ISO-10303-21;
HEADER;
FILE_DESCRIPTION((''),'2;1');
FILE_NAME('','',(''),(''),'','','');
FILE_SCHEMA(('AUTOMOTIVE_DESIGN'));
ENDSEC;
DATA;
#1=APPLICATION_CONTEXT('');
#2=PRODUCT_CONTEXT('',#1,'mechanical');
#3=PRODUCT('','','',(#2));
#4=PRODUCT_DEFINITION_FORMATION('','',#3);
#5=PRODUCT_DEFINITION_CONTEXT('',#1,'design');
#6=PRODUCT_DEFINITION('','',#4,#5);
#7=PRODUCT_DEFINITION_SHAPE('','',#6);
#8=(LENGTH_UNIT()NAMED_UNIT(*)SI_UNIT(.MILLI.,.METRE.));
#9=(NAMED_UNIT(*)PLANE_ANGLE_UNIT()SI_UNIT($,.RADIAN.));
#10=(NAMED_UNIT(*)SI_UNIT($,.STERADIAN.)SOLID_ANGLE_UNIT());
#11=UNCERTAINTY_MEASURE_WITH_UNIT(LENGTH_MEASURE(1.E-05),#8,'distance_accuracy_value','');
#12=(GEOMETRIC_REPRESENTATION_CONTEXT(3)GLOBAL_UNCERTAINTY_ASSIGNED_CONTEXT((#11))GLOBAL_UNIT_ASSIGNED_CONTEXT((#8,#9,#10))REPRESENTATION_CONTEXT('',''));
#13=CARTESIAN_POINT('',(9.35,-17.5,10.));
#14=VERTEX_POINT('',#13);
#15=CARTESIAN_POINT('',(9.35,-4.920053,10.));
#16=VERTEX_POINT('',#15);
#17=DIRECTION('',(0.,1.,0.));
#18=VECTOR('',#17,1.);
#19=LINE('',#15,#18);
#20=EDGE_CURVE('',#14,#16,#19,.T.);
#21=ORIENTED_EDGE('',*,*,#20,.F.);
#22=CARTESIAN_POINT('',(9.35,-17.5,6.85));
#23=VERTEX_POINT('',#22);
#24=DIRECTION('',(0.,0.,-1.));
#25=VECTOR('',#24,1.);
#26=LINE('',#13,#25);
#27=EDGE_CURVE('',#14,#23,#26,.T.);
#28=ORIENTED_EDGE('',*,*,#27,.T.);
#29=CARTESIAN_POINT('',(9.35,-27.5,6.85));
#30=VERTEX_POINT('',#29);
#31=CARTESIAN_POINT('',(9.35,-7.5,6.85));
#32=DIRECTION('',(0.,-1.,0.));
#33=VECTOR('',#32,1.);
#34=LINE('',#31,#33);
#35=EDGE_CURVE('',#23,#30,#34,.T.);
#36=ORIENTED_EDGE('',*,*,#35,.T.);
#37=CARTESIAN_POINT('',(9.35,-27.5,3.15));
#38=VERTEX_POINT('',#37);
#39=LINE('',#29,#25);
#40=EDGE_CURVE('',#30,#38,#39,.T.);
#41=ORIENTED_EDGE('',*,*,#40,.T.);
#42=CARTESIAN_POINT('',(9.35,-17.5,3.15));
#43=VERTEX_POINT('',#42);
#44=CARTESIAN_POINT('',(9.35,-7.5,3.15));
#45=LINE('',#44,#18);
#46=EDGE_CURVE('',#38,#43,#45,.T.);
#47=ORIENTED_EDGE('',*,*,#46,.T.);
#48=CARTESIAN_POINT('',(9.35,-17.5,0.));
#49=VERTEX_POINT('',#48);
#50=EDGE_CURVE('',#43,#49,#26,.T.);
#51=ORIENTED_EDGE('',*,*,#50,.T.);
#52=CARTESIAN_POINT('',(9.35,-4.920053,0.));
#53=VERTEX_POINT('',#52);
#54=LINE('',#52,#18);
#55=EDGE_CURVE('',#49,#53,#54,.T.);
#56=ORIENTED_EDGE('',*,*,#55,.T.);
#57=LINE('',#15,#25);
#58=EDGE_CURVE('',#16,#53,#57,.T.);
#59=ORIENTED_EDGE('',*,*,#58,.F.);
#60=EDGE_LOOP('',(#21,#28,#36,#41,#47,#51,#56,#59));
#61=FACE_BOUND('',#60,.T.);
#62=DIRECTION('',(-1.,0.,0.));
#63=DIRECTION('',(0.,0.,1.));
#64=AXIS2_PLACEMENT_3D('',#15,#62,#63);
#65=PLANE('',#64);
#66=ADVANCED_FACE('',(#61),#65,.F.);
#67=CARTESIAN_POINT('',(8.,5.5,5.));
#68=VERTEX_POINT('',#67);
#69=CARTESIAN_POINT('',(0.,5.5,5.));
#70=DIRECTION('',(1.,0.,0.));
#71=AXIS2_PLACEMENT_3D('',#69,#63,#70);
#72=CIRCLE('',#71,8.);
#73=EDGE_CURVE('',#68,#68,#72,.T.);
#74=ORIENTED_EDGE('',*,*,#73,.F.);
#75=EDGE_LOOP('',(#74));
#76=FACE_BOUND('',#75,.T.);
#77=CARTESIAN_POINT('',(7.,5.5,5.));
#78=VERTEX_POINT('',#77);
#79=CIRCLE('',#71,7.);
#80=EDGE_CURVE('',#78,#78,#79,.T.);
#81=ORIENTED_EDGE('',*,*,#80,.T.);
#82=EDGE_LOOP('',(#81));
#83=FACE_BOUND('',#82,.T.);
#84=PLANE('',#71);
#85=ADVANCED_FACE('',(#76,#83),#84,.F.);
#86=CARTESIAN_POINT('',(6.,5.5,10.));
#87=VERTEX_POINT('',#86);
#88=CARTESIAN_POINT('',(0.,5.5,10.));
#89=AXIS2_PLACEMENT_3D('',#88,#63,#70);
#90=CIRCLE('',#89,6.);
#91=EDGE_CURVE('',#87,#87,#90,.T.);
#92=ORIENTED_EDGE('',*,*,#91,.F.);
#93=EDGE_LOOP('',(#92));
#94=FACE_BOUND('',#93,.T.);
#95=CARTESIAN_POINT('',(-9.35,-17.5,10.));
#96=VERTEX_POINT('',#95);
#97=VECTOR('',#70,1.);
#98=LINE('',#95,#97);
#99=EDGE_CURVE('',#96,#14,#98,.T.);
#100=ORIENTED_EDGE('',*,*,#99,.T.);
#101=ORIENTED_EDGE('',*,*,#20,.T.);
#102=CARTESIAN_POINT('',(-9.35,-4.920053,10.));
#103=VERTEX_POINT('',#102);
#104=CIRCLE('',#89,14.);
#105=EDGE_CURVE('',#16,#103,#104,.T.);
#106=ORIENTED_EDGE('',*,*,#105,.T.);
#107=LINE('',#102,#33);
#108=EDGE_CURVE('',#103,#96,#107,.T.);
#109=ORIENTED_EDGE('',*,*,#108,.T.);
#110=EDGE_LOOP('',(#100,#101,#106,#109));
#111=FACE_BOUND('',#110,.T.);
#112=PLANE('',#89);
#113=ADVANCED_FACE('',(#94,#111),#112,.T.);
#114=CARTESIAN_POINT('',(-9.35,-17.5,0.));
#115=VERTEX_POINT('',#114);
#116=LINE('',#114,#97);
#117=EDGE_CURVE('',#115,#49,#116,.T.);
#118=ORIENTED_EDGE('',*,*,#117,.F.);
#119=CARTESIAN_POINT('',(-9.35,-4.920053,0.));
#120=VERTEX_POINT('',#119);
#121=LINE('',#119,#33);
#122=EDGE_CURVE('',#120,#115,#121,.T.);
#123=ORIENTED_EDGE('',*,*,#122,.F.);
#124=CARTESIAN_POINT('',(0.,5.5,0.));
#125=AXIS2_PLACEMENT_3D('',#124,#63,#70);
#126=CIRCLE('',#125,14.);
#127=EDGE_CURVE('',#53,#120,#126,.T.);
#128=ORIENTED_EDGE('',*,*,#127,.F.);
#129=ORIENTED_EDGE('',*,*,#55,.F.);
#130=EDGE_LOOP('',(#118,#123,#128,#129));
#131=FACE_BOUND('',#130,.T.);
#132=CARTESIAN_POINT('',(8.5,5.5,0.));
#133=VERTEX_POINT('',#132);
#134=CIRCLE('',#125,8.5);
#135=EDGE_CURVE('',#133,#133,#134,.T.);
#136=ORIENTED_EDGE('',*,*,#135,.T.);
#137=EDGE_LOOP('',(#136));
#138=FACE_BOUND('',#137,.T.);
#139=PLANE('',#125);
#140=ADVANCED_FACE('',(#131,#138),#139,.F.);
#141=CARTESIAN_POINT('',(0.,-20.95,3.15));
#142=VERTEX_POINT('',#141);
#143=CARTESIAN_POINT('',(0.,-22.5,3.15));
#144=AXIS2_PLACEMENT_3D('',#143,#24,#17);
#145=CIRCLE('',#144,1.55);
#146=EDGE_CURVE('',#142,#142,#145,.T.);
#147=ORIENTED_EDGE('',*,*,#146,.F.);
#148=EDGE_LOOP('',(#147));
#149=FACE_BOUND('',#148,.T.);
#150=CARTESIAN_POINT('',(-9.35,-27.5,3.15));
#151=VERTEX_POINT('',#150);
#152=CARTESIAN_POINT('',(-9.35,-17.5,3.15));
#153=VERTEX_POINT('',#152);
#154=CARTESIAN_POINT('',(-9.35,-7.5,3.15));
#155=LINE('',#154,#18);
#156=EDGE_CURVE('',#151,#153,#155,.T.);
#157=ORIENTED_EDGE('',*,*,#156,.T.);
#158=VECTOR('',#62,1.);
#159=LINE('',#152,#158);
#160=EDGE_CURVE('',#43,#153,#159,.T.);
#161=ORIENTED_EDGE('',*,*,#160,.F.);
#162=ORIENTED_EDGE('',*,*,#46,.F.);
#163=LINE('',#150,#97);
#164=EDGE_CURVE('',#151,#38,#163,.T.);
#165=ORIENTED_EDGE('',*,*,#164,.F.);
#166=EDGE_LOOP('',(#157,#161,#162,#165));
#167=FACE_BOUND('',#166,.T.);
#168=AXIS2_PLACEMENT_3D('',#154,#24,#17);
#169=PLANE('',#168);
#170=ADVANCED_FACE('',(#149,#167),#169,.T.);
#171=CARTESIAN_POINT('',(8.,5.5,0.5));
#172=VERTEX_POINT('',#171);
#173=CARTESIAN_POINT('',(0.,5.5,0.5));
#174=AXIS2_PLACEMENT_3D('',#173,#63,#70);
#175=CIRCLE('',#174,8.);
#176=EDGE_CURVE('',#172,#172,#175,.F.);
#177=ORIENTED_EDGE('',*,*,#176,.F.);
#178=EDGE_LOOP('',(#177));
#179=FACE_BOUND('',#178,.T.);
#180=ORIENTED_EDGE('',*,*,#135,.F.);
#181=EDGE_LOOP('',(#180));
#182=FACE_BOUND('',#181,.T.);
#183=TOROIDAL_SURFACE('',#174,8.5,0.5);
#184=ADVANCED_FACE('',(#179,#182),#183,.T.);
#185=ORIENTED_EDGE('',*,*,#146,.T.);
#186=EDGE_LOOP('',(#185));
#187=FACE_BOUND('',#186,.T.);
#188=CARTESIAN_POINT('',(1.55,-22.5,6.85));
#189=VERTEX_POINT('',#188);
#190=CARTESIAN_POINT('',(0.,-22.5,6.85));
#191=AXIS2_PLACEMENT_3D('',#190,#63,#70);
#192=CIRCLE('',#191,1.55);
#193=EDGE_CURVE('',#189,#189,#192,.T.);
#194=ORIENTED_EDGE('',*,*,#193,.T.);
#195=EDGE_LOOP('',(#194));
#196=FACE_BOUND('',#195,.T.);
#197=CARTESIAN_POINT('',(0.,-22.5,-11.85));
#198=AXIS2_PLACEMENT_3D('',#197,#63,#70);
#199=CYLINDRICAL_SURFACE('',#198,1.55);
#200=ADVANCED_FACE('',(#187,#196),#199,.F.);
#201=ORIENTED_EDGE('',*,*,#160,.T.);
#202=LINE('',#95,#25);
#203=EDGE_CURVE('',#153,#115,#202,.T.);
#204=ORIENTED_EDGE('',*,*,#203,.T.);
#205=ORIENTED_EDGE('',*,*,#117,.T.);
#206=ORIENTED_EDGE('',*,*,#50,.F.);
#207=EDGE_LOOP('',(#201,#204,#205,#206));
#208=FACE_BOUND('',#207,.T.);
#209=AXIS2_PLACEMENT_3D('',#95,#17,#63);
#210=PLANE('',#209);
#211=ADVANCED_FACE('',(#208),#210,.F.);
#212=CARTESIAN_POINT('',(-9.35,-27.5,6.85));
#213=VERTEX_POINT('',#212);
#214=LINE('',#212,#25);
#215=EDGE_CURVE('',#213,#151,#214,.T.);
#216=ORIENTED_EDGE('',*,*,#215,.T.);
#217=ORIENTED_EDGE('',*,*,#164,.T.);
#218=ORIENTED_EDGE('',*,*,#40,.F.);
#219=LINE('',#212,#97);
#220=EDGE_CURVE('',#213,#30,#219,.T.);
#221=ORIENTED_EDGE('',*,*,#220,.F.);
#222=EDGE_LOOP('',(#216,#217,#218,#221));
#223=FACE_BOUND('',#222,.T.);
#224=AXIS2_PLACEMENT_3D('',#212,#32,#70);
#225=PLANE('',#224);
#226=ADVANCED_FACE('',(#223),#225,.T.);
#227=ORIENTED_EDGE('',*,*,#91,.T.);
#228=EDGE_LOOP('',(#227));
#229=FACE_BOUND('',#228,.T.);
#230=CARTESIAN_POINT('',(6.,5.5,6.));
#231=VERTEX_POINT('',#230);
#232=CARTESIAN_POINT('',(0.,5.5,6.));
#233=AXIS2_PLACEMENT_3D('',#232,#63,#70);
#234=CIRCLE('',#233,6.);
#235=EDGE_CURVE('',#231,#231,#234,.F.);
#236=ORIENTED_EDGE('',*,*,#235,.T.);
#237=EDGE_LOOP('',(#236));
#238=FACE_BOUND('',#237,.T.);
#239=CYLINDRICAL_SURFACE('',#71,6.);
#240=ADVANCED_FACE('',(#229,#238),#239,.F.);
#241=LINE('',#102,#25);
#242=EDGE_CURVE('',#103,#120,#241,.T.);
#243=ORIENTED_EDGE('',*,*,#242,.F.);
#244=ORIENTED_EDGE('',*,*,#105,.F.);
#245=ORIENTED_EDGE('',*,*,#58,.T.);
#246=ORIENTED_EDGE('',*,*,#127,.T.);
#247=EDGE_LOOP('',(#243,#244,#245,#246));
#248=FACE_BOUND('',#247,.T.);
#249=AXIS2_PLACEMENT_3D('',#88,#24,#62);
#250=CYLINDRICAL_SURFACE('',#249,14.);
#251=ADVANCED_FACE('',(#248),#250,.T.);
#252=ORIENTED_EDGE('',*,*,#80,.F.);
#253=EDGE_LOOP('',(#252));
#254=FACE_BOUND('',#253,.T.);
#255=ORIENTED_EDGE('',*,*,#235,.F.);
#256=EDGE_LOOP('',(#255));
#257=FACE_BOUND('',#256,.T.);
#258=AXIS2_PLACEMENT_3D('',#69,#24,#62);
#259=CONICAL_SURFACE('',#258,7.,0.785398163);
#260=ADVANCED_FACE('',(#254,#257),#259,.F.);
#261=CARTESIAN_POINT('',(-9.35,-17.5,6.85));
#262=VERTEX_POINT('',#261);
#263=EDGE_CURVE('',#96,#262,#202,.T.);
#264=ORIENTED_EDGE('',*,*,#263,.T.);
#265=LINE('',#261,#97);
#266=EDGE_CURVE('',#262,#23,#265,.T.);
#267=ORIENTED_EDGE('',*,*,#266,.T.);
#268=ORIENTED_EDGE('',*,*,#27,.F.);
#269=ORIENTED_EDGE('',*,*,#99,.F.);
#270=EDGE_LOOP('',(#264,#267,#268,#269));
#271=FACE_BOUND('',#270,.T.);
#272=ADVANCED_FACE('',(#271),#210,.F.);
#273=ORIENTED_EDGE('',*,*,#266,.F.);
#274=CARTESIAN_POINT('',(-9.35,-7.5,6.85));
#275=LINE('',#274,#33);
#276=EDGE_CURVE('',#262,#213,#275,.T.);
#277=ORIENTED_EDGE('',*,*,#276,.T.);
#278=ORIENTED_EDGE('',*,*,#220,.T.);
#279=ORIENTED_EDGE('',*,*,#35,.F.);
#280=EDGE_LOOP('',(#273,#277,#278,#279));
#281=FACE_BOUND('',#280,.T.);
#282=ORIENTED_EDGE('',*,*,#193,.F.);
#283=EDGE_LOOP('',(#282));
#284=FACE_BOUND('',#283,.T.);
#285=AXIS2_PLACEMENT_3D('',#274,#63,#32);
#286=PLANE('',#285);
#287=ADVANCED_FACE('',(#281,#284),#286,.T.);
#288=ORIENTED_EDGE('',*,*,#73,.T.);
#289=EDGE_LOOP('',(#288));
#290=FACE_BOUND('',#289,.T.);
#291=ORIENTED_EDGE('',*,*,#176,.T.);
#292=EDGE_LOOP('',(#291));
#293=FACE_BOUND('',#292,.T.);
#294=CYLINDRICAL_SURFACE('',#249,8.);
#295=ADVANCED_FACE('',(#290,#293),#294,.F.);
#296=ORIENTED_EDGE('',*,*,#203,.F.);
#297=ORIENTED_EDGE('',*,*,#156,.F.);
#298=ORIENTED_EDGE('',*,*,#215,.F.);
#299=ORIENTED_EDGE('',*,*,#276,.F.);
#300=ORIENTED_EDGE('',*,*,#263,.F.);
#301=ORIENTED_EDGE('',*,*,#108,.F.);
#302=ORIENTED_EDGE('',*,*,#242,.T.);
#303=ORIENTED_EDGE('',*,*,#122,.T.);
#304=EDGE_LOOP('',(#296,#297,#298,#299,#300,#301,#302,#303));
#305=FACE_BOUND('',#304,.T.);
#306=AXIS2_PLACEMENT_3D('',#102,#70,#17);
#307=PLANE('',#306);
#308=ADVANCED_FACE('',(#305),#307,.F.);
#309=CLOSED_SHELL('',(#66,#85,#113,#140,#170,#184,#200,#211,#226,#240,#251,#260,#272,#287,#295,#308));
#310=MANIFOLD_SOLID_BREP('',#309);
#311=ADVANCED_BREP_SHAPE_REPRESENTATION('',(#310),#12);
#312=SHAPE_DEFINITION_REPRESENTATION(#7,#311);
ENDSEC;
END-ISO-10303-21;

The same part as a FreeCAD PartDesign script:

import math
import FreeCAD as App
import Part
import Sketcher

V = App.Vector
Q = App.Units.Quantity


def edges_at(feature, points):
    """Names of the edges that pass closest to the given points."""
    edges = feature.Shape.Edges
    near = lambda p: min(range(len(edges)), key=lambda i: edges[i].distToShape(Part.Vertex(*p))[0])
    return sorted({f"Edge{near(p) + 1}" for p in points})

doc = App.newDocument("Part")
body = doc.addObject("PartDesign::Body", "Body")

# Sketch on XY plane
sketch1 = body.newObject("Sketcher::SketchObject", "Sketch")
sketch1.AttachmentSupport = (doc.getObject("XY_Plane"), [""])
sketch1.MapMode = "FlatFace"
sketch1.addGeometry(Part.LineSegment(V(-9, -5, 0), V(-9, -18, 0)), False)
sketch1.addGeometry(Part.LineSegment(V(-9, -18, 0), V(9, -18, 0)), False)
sketch1.addGeometry(Part.LineSegment(V(9, -18, 0), V(9, -5, 0)), False)
sketch1.addGeometry(Part.ArcOfCircle(Part.Circle(V(0, 6, 0), V(0, 0, 1), 14), math.radians(-48), math.radians(228)), False)
sketch1.addGeometry(Part.Circle(V(0, 6, 0), V(0, 0, 1), 8), False)
sketch1.addConstraint(Sketcher.Constraint("Coincident", 0, 2, 1, 1))
sketch1.addConstraint(Sketcher.Constraint("Coincident", 1, 2, 2, 1))
sketch1.addConstraint(Sketcher.Constraint("Coincident", 2, 2, 3, 1))
sketch1.addConstraint(Sketcher.Constraint("Coincident", 3, 2, 0, 1))
sketch1.addConstraint(Sketcher.Constraint("Vertical", 0))
sketch1.addConstraint(Sketcher.Constraint("Horizontal", 1))
sketch1.addConstraint(Sketcher.Constraint("Vertical", 2))
sketch1.addConstraint(Sketcher.Constraint("Coincident", 4, 3, 3, 3))
sketch1.addConstraint(Sketcher.Constraint("Symmetric", 2, 2, 3, 2, -2))
sketch1.addConstraint(Sketcher.Constraint("Diameter", 4, Q("16 mm")))
sketch1.addConstraint(Sketcher.Constraint("Radius", 3, Q("14 mm")))
sketch1.addConstraint(Sketcher.Constraint("DistanceX", 1, 1, 1, 2, Q("18.7 mm")))
sketch1.addConstraint(Sketcher.Constraint("DistanceY", 0, 2, 3, 3, Q("23 mm")))
sketch1.addConstraint(Sketcher.Constraint("DistanceY", -1, 1, 3, 3, Q("5.5 mm")))
pad1 = body.newObject("PartDesign::Pad", "Pad")
pad1.Profile = sketch1
pad1.Length = 10

# Sketch on YZ plane
sketch2 = body.newObject("Sketcher::SketchObject", "Sketch001")
sketch2.AttachmentSupport = (doc.getObject("YZ_Plane"), [""])
sketch2.MapMode = "FlatFace"
sketch2.AttachmentOffset = App.Placement(V(0, 0, 9.35), App.Rotation())
sketch2.addGeometry(Part.LineSegment(V(-7.5, 6.8, 0), V(-27.5, 6.8, 0)), False)
sketch2.addGeometry(Part.LineSegment(V(-27.5, 6.8, 0), V(-27.5, 3.1, 0)), False)
sketch2.addGeometry(Part.LineSegment(V(-27.5, 3.1, 0), V(-7.5, 3.1, 0)), False)
sketch2.addGeometry(Part.LineSegment(V(-7.5, 3.1, 0), V(-7.5, 6.8, 0)), False)
sketch2.addConstraint(Sketcher.Constraint("Coincident", 0, 2, 1, 1))
sketch2.addConstraint(Sketcher.Constraint("Coincident", 1, 2, 2, 1))
sketch2.addConstraint(Sketcher.Constraint("Coincident", 2, 2, 3, 1))
sketch2.addConstraint(Sketcher.Constraint("Coincident", 3, 2, 0, 1))
sketch2.addConstraint(Sketcher.Constraint("Horizontal", 0))
sketch2.addConstraint(Sketcher.Constraint("Vertical", 1))
sketch2.addConstraint(Sketcher.Constraint("Horizontal", 2))
sketch2.addConstraint(Sketcher.Constraint("Vertical", 3))
sketch2.addConstraint(Sketcher.Constraint("DistanceX", 0, 2, 0, 1, Q("20 mm")))
sketch2.addConstraint(Sketcher.Constraint("DistanceY", 1, 2, 1, 1, Q("3.7 mm")))
sketch2.addConstraint(Sketcher.Constraint("DistanceX", 0, 2, -1, 1, Q("27.5 mm")))
sketch2.addConstraint(Sketcher.Constraint("DistanceY", -1, 1, 0, 2, Q("6.85 mm")))
pad2 = body.newObject("PartDesign::Pad", "Pad001")
pad2.Profile = sketch2
pad2.Length = 18.7
pad2.Reversed = True

# Sketch on XY plane
sketch3 = body.newObject("Sketcher::SketchObject", "Sketch002")
sketch3.AttachmentSupport = (doc.getObject("XY_Plane"), [""])
sketch3.MapMode = "FlatFace"
sketch3.AttachmentOffset = App.Placement(V(0, 0, 6.85), App.Rotation())
sketch3.addGeometry(Part.Circle(V(0, -22.5, 0), V(0, 0, 1), 1.6), False)
sketch3.addConstraint(Sketcher.Constraint("PointOnObject", 0, 3, -2))
sketch3.addConstraint(Sketcher.Constraint("Diameter", 0, Q("3.1 mm")))
sketch3.addConstraint(Sketcher.Constraint("DistanceY", 0, 3, -1, 1, Q("22.5 mm")))
pocket1 = body.newObject("PartDesign::Pocket", "Pocket")
pocket1.Profile = sketch3
pocket1.Length = 18.7

# Sketch on XY plane
sketch4 = body.newObject("Sketcher::SketchObject", "Sketch003")
sketch4.AttachmentSupport = (doc.getObject("XY_Plane"), [""])
sketch4.MapMode = "FlatFace"
sketch4.AttachmentOffset = App.Placement(V(0, 0, 5), App.Rotation())
sketch4.addGeometry(Part.Circle(V(0, 6, 0), V(0, 0, 1), 8), False)
sketch4.addGeometry(Part.Circle(V(0, 6, 0), V(0, 0, 1), 6), False)
sketch4.addConstraint(Sketcher.Constraint("Coincident", 1, 3, 0, 3))
sketch4.addConstraint(Sketcher.Constraint("PointOnObject", 0, 3, -2))
sketch4.addConstraint(Sketcher.Constraint("Diameter", 0, Q("16 mm")))
sketch4.addConstraint(Sketcher.Constraint("Diameter", 1, Q("12 mm")))
sketch4.addConstraint(Sketcher.Constraint("DistanceY", -1, 1, 0, 3, Q("5.5 mm")))
pad3 = body.newObject("PartDesign::Pad", "Pad002")
pad3.Profile = sketch4
pad3.Length = 5
doc.recompute()

chamfer = body.newObject("PartDesign::Chamfer", "Chamfer")
chamfer.Base = (pad3, edges_at(pad3, [(-6, 5.5, 5)]))
chamfer.Size = 1
doc.recompute()

fillet = body.newObject("PartDesign::Fillet", "Fillet")
fillet.Base = (chamfer, edges_at(chamfer, [(-8, 5.5, 0)]))
fillet.Radius = 0.5

doc.recompute()
